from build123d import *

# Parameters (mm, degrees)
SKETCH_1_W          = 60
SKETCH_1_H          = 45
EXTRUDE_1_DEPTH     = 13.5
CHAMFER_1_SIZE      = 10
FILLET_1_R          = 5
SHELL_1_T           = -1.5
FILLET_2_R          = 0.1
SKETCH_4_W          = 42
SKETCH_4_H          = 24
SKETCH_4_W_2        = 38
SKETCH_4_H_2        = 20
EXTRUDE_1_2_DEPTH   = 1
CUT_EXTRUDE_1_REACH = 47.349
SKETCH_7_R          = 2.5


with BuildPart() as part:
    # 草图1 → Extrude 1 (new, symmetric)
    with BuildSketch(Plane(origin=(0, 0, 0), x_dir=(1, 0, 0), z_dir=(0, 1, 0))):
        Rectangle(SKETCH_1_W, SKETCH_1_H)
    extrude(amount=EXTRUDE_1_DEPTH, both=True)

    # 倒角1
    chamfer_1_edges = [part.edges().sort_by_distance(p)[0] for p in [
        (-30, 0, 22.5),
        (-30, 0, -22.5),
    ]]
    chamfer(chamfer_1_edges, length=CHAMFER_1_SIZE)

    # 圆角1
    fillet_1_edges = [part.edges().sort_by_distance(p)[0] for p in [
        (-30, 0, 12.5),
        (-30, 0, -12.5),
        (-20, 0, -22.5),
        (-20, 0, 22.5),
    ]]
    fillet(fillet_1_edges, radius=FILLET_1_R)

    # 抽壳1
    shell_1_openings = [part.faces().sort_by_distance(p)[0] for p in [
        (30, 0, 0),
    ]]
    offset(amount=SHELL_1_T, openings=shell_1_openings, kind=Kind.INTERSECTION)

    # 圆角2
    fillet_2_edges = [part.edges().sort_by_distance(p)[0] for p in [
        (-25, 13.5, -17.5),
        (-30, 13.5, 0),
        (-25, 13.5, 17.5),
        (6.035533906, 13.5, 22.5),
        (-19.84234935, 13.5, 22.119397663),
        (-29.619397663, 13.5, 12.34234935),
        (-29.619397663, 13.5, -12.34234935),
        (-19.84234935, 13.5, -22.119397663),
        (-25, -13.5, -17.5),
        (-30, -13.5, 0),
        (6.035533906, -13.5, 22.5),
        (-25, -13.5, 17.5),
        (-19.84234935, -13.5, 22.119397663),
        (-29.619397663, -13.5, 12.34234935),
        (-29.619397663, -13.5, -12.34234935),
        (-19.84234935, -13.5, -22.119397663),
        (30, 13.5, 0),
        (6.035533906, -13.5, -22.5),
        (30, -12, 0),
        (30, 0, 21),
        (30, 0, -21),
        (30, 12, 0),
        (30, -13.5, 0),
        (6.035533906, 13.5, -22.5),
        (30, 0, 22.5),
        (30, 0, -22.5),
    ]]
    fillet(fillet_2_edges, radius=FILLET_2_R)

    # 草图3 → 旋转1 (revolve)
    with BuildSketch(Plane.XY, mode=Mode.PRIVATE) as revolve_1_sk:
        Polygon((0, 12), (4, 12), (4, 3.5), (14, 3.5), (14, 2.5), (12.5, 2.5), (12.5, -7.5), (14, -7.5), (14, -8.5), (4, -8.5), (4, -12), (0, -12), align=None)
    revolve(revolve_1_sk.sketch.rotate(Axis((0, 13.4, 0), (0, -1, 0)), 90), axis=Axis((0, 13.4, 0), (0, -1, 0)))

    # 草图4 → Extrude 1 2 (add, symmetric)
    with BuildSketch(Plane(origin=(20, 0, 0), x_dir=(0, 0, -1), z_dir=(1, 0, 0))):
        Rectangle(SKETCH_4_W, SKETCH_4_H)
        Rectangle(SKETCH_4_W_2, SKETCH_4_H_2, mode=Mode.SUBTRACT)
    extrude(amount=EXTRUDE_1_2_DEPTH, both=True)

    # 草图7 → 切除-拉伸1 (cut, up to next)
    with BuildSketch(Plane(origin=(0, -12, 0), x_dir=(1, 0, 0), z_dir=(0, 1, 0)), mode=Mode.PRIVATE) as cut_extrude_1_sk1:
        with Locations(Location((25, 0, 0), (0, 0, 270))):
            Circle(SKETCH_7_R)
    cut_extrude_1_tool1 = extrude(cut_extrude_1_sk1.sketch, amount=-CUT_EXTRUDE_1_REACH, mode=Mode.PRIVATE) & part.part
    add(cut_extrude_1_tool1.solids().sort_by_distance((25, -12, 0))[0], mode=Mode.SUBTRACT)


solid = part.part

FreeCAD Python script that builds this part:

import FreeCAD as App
import Part
import Sketcher

V = App.Vector
Q = App.Units.Quantity


def edges_at(feature, points):
    """Names of the edges that pass closest to the given points."""
    edges = feature.Shape.Edges
    near = lambda p: min(range(len(edges)), key=lambda i: edges[i].distToShape(Part.Vertex(*p))[0])
    return sorted({f"Edge{near(p) + 1}" for p in points})


def faces_at(feature, points):
    """Names of the faces that lie closest to the given points."""
    faces = feature.Shape.Faces
    near = lambda p: min(range(len(faces)), key=lambda i: faces[i].distToShape(Part.Vertex(*p))[0])
    return sorted({f"Face{near(p) + 1}" for p in points})

doc = App.newDocument("Part")
body = doc.addObject("PartDesign::Body", "Body")

# Sketch on XZ plane
sketch1 = doc.addObject("Sketcher::SketchObject", "Sketch")
body.addObject(sketch1)
sketch1.AttachmentSupport = (doc.XZ_Plane, [""])
sketch1.MapMode = "FlatFace"
sketch1.addGeometry([
    Part.LineSegment(V(-30, -22.5, 0), V(-30, 22.5, 0)),
    Part.LineSegment(V(-30, 22.5, 0), V(30, 22.5, 0)),
    Part.LineSegment(V(30, 22.5, 0), V(30, -22.5, 0)),
    Part.LineSegment(V(30, -22.5, 0), V(-30, -22.5, 0)),
], False)
sketch1.addConstraint([
    Sketcher.Constraint("Coincident", 0, 2, 1, 1),
    Sketcher.Constraint("Coincident", 1, 2, 2, 1),
    Sketcher.Constraint("Coincident", 2, 2, 3, 1),
    Sketcher.Constraint("Coincident", 3, 2, 0, 1),
    Sketcher.Constraint("Vertical", 0),
    Sketcher.Constraint("Horizontal", 1),
    Sketcher.Constraint("Vertical", 2),
    Sketcher.Constraint("Horizontal", 3),
    Sketcher.Constraint("Symmetric", 0, 2, 2, 2, -1, 1),
    Sketcher.Constraint("DistanceX", 1, 1, 1, 2, Q("60 mm")),
    Sketcher.Constraint("DistanceY", 0, 1, 0, 2, Q("45 mm")),
])
pad1 = doc.addObject("PartDesign::Pad", "Pad")
body.addObject(pad1)
pad1.Profile = sketch1
pad1.Length = 27
pad1.Midplane = True
doc.recompute()

chamfer = doc.addObject("PartDesign::Chamfer", "Chamfer")
body.addObject(chamfer)
chamfer.Base = (pad1, edges_at(pad1, [(-30, 0, 22.5), (-30, 0, -22.5)]))
chamfer.Size = 10
doc.recompute()

fillet = doc.addObject("PartDesign::Fillet", "Fillet")
body.addObject(fillet)
fillet.Base = (chamfer, edges_at(chamfer, [
    (-30, 0, 12.5),
    (-30, 0, -12.5),
    (-20, 0, -22.5),
    (-20, 0, 22.5),
]))
fillet.Radius = 5
doc.recompute()

thickness = doc.addObject("PartDesign::Thickness", "Thickness")
body.addObject(thickness)
thickness.Base = (fillet, faces_at(fillet, [(30, 0, 0)]))
thickness.Value = 1.5
thickness.Reversed = True
thickness.Join = "Intersection"
doc.recompute()

fillet2 = doc.addObject("PartDesign::Fillet", "Fillet001")
body.addObject(fillet2)
fillet2.Base = (thickness, edges_at(thickness, [
    (-25, 13.5, -17.5),
    (-30, 13.5, 0),
    (-25, 13.5, 17.5),
    (6.036, 13.5, 22.5),
    (-19.842, 13.5, 22.119),
    (-29.619, 13.5, 12.342),
    (-29.619, 13.5, -12.342),
    (-19.842, 13.5, -22.119),
    (-25, -13.5, -17.5),
    (-30, -13.5, 0),
    (6.036, -13.5, 22.5),
    (-25, -13.5, 17.5),
    (-19.842, -13.5, 22.119),
    (-29.619, -13.5, 12.342),
    (-29.619, -13.5, -12.342),
    (-19.842, -13.5, -22.119),
    (30, 13.5, 0),
    (6.036, -13.5, -22.5),
    (30, -12, 0),
    (30, 0, 21),
    (30, 0, -21),
    (30, 12, 0),
    (30, -13.5, 0),
    (6.036, 13.5, -22.5),
    (30, 0, 22.5),
    (30, 0, -22.5),
]))
fillet2.Radius = 0.1

# Sketch on XY plane
sketch2 = doc.addObject("Sketcher::SketchObject", "Sketch001")
body.addObject(sketch2)
sketch2.AttachmentSupport = (doc.XY_Plane, [""])
sketch2.MapMode = "FlatFace"
sketch2.addGeometry([
    Part.LineSegment(V(4, 12, 0), V(0, 12, 0)),  # 0
    Part.LineSegment(V(0, 12, 0), V(0, -12, 0)),  # 1
    Part.LineSegment(V(0, -12, 0), V(4, -12, 0)),  # 2
    Part.LineSegment(V(4, -12, 0), V(4, -8.5, 0)),  # 3
    Part.LineSegment(V(4, -8.5, 0), V(14, -8.5, 0)),  # 4
    Part.LineSegment(V(14, -8.5, 0), V(14, -7.5, 0)),  # 5
    Part.LineSegment(V(14, -7.5, 0), V(12.5, -7.5, 0)),  # 6
    Part.LineSegment(V(12.5, -7.5, 0), V(12.5, 2.5, 0)),  # 7
    Part.LineSegment(V(12.5, 2.5, 0), V(14, 2.5, 0)),  # 8
    Part.LineSegment(V(14, 2.5, 0), V(14, 3.5, 0)),  # 9
    Part.LineSegment(V(14, 3.5, 0), V(4, 3.5, 0)),  # 10
    Part.LineSegment(V(4, 3.5, 0), V(4, 12, 0)),  # 11
], False)
sketch2.addConstraint([
    Sketcher.Constraint("Coincident", 0, 2, 1, 1),
    Sketcher.Constraint("Coincident", 1, 2, 2, 1),
    Sketcher.Constraint("Coincident", 2, 2, 3, 1),
    Sketcher.Constraint("Coincident", 3, 2, 4, 1),
    Sketcher.Constraint("Coincident", 4, 2, 5, 1),
    Sketcher.Constraint("Coincident", 5, 2, 6, 1),
    Sketcher.Constraint("Coincident", 6, 2, 7, 1),
    Sketcher.Constraint("Coincident", 7, 2, 8, 1),
    Sketcher.Constraint("Coincident", 8, 2, 9, 1),
    Sketcher.Constraint("Coincident", 9, 2, 10, 1),
    Sketcher.Constraint("Coincident", 10, 2, 11, 1),
    Sketcher.Constraint("Coincident", 11, 2, 0, 1),
    Sketcher.Constraint("Horizontal", 0),
    Sketcher.Constraint("Vertical", 1),
    Sketcher.Constraint("Horizontal", 2),
    Sketcher.Constraint("Vertical", 3),
    Sketcher.Constraint("Horizontal", 4),
    Sketcher.Constraint("Vertical", 5),
    Sketcher.Constraint("Horizontal", 6),
    Sketcher.Constraint("Vertical", 7),
    Sketcher.Constraint("Horizontal", 8),
    Sketcher.Constraint("Vertical", 9),
    Sketcher.Constraint("Horizontal", 10),
    Sketcher.Constraint("Vertical", 11),
    Sketcher.Constraint("Symmetric", 0, 2, 1, 2, -1, 1),
    Sketcher.Constraint("Vertical", 5, 2, 8, 2),
    Sketcher.Constraint("Vertical", 3, 2, 10, 2),
    Sketcher.Constraint("Equal", 10, 7),
    Sketcher.Constraint("Equal", 5, 9),
    Sketcher.Constraint("DistanceX", 0, 2, 0, 1, Q("4 mm")),
    Sketcher.Constraint("DistanceX", 4, 1, 4, 2, Q("10 mm")),
    Sketcher.Constraint("DistanceY", 1, 2, 1, 1, Q("24 mm")),
    Sketcher.Constraint("DistanceY", 5, 1, 5, 2, Q("1 mm")),
    Sketcher.Constraint("DistanceX", 6, 2, 6, 1, Q("1.5 mm")),
    Sketcher.Constraint("DistanceY", 3, 1, 3, 2, Q("3.5 mm")),
])
revolution = doc.addObject("PartDesign::Revolution", "Revolution")
body.addObject(revolution)
revolution.Profile = sketch2
revolution.ReferenceAxis = (sketch2, ["V_Axis"])
revolution.Angle = 360

# Sketch on YZ plane
sketch3 = doc.addObject("Sketcher::SketchObject", "Sketch002")
body.addObject(sketch3)
sketch3.AttachmentSupport = (doc.YZ_Plane, [""])
sketch3.MapMode = "FlatFace"
sketch3.AttachmentOffset = App.Placement(V(0, 0, 20), App.Rotation())
sketch3.addGeometry([
    Part.LineSegment(V(12, 21, 0), V(-12, 21, 0)),  # 0
    Part.LineSegment(V(-12, 21, 0), V(-12, -21, 0)),  # 1
    Part.LineSegment(V(-12, -21, 0), V(12, -21, 0)),  # 2
    Part.LineSegment(V(12, -21, 0), V(12, 21, 0)),  # 3
    Part.LineSegment(V(-10, -19, 0), V(-10, 19, 0)),  # 4
    Part.LineSegment(V(-10, 19, 0), V(10, 19, 0)),  # 5
    Part.LineSegment(V(10, 19, 0), V(10, -19, 0)),  # 6
    Part.LineSegment(V(10, -19, 0), V(-10, -19, 0)),  # 7
], False)
sketch3.addConstraint([
    Sketcher.Constraint("Coincident", 0, 2, 1, 1),
    Sketcher.Constraint("Coincident", 1, 2, 2, 1),
    Sketcher.Constraint("Coincident", 2, 2, 3, 1),
    Sketcher.Constraint("Coincident", 3, 2, 0, 1),
    Sketcher.Constraint("Coincident", 4, 2, 5, 1),
    Sketcher.Constraint("Coincident", 5, 2, 6, 1),
    Sketcher.Constraint("Coincident", 6, 2, 7, 1),
    Sketcher.Constraint("Coincident", 7, 2, 4, 1),
    Sketcher.Constraint("Horizontal", 0),
    Sketcher.Constraint("Vertical", 1),
    Sketcher.Constraint("Horizontal", 2),
    Sketcher.Constraint("Vertical", 3),
    Sketcher.Constraint("Vertical", 4),
    Sketcher.Constraint("Horizontal", 5),
    Sketcher.Constraint("Vertical", 6),
    Sketcher.Constraint("Horizontal", 7),
    Sketcher.Constraint("Symmetric", 0, 2, 2, 2, -1, 1),
    Sketcher.Constraint("Symmetric", 4, 2, 6, 2, -1, 1),
    Sketcher.Constraint("DistanceX", 0, 2, 0, 1, Q("24 mm")),
    Sketcher.Constraint("DistanceX", 5, 1, 5, 2, Q("20 mm")),
    Sketcher.Constraint("DistanceY", 1, 2, 1, 1, Q("42 mm")),
    Sketcher.Constraint("DistanceY", 4, 1, 4, 2, Q("38 mm")),
])
pad2 = doc.addObject("PartDesign::Pad", "Pad001")
body.addObject(pad2)
pad2.Profile = sketch3
pad2.Length = 2
pad2.Midplane = True

# Sketch on XZ plane
sketch4 = doc.addObject("Sketcher::SketchObject", "Sketch003")
body.addObject(sketch4)
sketch4.AttachmentSupport = (doc.XZ_Plane, [""])
sketch4.MapMode = "FlatFace"
sketch4.AttachmentOffset = App.Placement(V(0, 0, 12), App.Rotation())
sketch4.addGeometry(Part.Circle(V(25, 0, 0), V(0, 0, 1), 2.5), False)
sketch4.addConstraint([
    Sketcher.Constraint("PointOnObject", 0, 3, -1),
    Sketcher.Constraint("Diameter", 0, Q("5 mm")),
    Sketcher.Constraint("DistanceX", -1, 1, 0, 3, Q("25 mm")),
])
pocket1 = doc.addObject("PartDesign::Pocket", "Pocket")
body.addObject(pocket1)
pocket1.Profile = sketch4
pocket1.Type = "UpToFirst"
pocket1.Reversed = True

doc.recompute()
